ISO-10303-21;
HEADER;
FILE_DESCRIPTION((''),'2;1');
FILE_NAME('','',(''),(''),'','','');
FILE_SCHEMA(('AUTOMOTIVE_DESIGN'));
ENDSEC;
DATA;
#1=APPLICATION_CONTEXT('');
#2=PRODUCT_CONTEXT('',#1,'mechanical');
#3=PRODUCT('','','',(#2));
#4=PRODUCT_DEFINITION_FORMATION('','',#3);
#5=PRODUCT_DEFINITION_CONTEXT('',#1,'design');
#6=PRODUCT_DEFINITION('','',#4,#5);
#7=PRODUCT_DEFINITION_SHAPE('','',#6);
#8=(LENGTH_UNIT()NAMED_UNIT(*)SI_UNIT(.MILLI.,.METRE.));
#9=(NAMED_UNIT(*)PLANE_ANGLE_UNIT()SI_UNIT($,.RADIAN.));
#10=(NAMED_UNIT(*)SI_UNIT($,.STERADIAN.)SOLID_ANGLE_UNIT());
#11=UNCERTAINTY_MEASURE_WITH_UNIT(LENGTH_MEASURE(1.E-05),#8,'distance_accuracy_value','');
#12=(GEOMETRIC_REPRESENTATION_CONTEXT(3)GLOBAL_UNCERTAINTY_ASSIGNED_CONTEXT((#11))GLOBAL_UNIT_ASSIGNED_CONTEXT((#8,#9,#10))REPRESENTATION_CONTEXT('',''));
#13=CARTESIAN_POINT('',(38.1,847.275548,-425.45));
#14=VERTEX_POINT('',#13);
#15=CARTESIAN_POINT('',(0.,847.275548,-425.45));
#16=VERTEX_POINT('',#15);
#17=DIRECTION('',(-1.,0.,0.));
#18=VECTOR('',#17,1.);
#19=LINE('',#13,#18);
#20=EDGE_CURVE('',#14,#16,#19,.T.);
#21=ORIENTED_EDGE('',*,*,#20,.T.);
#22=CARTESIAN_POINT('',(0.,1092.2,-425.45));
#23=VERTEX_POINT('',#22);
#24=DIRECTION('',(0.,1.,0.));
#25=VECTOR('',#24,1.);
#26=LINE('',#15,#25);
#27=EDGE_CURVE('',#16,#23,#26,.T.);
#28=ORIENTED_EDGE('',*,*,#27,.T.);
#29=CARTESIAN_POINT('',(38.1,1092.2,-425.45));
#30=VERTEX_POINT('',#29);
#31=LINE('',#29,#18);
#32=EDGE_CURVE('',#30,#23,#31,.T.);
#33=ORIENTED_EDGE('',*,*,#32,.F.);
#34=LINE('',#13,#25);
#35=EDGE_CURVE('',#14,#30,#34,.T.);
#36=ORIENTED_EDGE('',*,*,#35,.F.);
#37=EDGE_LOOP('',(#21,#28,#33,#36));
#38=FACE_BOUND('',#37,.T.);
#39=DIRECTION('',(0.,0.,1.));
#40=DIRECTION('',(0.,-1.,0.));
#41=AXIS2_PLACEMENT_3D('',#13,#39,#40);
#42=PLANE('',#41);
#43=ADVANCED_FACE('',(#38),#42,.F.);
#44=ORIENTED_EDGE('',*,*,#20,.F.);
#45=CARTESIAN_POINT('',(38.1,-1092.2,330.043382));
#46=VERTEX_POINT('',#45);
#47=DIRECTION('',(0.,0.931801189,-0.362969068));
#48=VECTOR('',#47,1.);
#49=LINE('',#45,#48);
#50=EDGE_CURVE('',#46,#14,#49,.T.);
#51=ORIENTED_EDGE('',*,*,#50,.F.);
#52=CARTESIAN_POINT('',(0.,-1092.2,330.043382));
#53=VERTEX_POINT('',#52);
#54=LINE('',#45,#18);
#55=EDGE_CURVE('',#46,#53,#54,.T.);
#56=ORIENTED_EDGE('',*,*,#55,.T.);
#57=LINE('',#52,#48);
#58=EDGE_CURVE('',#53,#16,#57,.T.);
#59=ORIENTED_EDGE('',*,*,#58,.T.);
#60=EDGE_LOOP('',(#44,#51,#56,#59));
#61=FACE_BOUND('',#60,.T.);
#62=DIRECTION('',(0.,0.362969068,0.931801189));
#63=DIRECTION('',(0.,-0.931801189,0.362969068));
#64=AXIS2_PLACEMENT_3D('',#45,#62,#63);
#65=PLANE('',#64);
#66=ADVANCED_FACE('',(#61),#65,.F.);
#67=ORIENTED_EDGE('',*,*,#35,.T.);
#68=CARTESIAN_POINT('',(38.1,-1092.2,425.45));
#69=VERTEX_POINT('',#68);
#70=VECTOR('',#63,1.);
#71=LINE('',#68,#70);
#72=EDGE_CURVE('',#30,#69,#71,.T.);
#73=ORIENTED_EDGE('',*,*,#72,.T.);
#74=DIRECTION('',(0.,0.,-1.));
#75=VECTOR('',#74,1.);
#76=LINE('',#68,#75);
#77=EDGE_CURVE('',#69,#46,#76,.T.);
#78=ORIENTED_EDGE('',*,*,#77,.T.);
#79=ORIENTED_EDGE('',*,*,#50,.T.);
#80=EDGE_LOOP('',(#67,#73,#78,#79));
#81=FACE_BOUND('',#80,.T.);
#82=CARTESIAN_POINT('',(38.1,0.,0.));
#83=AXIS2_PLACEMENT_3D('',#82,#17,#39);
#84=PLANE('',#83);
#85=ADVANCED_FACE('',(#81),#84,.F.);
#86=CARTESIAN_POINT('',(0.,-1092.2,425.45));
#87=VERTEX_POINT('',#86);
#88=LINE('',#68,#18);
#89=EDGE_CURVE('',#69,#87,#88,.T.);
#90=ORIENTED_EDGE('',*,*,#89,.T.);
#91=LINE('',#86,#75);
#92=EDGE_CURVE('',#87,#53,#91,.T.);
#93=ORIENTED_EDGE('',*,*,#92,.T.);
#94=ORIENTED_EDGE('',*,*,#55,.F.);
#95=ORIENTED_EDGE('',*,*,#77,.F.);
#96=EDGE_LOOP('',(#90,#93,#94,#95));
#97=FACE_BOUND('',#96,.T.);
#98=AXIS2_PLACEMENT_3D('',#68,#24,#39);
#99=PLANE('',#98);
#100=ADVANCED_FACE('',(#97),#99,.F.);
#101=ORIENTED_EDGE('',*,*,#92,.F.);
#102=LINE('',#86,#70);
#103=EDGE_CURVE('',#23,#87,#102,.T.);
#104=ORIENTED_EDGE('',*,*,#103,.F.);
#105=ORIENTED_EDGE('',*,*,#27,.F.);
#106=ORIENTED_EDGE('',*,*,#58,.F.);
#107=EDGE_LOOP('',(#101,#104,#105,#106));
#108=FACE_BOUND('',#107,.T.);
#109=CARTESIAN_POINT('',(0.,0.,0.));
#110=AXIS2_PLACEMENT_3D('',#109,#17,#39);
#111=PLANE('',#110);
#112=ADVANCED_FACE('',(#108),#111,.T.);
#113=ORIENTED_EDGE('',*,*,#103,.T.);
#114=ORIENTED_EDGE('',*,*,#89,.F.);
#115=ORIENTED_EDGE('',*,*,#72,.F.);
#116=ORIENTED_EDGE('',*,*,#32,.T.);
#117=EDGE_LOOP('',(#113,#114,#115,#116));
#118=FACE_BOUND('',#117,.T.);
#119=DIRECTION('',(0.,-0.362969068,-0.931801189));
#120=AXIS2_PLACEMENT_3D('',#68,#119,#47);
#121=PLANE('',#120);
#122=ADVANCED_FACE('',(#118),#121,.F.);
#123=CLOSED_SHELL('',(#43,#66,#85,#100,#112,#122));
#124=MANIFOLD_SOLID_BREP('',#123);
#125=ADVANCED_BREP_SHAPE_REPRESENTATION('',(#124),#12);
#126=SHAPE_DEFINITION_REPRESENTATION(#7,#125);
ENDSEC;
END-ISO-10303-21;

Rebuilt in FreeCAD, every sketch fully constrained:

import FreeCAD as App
import Part
import Sketcher
from FreeCAD import Vector
Q = App.Units.Quantity

doc = App.newDocument("Part")
body = doc.addObject("PartDesign::Body", "Body")

# Sketch on YZ plane
sketch1 = body.newObject("Sketcher::SketchObject", "Sketch")
sketch1.AttachmentSupport = (doc.getObject("YZ_Plane"), [""])
sketch1.MapMode = "FlatFace"
sketch1.addGeometry([
    Part.LineSegment(Vector(-1092, 425, 0), Vector(-1092, 330, 0)),
    Part.LineSegment(Vector(-1092, 330, 0), Vector(847, -425, 0)),
    Part.LineSegment(Vector(847, -425, 0), Vector(1092, -425, 0)),
    Part.LineSegment(Vector(1092, -425, 0), Vector(-1092, 425, 0)),
], False)
sketch1.addConstraint([
    Sketcher.Constraint("Coincident", 0, 2, 1, 1),
    Sketcher.Constraint("Coincident", 1, 2, 2, 1),
    Sketcher.Constraint("Coincident", 2, 2, 3, 1),
    Sketcher.Constraint("Coincident", 3, 2, 0, 1),
    Sketcher.Constraint("Vertical", 0),
    Sketcher.Constraint("Horizontal", 2),
    Sketcher.Constraint("Symmetric", 2, 2, 3, 2, -1, 1),
    Sketcher.Constraint("Parallel", 1, 3),
    Sketcher.Constraint("DistanceX", 0, 2, -1, 1, Q("43 in")),
    Sketcher.Constraint("DistanceY", 1, 2, 3, 2, Q("33.5 in")),
    Sketcher.Constraint("DistanceX", 2, 1, 2, 2, 244.924452),
])
pad1 = body.newObject("PartDesign::Pad", "Pad")
pad1.Profile = sketch1
pad1.Length = Q("1.5 in")

doc.recompute()
